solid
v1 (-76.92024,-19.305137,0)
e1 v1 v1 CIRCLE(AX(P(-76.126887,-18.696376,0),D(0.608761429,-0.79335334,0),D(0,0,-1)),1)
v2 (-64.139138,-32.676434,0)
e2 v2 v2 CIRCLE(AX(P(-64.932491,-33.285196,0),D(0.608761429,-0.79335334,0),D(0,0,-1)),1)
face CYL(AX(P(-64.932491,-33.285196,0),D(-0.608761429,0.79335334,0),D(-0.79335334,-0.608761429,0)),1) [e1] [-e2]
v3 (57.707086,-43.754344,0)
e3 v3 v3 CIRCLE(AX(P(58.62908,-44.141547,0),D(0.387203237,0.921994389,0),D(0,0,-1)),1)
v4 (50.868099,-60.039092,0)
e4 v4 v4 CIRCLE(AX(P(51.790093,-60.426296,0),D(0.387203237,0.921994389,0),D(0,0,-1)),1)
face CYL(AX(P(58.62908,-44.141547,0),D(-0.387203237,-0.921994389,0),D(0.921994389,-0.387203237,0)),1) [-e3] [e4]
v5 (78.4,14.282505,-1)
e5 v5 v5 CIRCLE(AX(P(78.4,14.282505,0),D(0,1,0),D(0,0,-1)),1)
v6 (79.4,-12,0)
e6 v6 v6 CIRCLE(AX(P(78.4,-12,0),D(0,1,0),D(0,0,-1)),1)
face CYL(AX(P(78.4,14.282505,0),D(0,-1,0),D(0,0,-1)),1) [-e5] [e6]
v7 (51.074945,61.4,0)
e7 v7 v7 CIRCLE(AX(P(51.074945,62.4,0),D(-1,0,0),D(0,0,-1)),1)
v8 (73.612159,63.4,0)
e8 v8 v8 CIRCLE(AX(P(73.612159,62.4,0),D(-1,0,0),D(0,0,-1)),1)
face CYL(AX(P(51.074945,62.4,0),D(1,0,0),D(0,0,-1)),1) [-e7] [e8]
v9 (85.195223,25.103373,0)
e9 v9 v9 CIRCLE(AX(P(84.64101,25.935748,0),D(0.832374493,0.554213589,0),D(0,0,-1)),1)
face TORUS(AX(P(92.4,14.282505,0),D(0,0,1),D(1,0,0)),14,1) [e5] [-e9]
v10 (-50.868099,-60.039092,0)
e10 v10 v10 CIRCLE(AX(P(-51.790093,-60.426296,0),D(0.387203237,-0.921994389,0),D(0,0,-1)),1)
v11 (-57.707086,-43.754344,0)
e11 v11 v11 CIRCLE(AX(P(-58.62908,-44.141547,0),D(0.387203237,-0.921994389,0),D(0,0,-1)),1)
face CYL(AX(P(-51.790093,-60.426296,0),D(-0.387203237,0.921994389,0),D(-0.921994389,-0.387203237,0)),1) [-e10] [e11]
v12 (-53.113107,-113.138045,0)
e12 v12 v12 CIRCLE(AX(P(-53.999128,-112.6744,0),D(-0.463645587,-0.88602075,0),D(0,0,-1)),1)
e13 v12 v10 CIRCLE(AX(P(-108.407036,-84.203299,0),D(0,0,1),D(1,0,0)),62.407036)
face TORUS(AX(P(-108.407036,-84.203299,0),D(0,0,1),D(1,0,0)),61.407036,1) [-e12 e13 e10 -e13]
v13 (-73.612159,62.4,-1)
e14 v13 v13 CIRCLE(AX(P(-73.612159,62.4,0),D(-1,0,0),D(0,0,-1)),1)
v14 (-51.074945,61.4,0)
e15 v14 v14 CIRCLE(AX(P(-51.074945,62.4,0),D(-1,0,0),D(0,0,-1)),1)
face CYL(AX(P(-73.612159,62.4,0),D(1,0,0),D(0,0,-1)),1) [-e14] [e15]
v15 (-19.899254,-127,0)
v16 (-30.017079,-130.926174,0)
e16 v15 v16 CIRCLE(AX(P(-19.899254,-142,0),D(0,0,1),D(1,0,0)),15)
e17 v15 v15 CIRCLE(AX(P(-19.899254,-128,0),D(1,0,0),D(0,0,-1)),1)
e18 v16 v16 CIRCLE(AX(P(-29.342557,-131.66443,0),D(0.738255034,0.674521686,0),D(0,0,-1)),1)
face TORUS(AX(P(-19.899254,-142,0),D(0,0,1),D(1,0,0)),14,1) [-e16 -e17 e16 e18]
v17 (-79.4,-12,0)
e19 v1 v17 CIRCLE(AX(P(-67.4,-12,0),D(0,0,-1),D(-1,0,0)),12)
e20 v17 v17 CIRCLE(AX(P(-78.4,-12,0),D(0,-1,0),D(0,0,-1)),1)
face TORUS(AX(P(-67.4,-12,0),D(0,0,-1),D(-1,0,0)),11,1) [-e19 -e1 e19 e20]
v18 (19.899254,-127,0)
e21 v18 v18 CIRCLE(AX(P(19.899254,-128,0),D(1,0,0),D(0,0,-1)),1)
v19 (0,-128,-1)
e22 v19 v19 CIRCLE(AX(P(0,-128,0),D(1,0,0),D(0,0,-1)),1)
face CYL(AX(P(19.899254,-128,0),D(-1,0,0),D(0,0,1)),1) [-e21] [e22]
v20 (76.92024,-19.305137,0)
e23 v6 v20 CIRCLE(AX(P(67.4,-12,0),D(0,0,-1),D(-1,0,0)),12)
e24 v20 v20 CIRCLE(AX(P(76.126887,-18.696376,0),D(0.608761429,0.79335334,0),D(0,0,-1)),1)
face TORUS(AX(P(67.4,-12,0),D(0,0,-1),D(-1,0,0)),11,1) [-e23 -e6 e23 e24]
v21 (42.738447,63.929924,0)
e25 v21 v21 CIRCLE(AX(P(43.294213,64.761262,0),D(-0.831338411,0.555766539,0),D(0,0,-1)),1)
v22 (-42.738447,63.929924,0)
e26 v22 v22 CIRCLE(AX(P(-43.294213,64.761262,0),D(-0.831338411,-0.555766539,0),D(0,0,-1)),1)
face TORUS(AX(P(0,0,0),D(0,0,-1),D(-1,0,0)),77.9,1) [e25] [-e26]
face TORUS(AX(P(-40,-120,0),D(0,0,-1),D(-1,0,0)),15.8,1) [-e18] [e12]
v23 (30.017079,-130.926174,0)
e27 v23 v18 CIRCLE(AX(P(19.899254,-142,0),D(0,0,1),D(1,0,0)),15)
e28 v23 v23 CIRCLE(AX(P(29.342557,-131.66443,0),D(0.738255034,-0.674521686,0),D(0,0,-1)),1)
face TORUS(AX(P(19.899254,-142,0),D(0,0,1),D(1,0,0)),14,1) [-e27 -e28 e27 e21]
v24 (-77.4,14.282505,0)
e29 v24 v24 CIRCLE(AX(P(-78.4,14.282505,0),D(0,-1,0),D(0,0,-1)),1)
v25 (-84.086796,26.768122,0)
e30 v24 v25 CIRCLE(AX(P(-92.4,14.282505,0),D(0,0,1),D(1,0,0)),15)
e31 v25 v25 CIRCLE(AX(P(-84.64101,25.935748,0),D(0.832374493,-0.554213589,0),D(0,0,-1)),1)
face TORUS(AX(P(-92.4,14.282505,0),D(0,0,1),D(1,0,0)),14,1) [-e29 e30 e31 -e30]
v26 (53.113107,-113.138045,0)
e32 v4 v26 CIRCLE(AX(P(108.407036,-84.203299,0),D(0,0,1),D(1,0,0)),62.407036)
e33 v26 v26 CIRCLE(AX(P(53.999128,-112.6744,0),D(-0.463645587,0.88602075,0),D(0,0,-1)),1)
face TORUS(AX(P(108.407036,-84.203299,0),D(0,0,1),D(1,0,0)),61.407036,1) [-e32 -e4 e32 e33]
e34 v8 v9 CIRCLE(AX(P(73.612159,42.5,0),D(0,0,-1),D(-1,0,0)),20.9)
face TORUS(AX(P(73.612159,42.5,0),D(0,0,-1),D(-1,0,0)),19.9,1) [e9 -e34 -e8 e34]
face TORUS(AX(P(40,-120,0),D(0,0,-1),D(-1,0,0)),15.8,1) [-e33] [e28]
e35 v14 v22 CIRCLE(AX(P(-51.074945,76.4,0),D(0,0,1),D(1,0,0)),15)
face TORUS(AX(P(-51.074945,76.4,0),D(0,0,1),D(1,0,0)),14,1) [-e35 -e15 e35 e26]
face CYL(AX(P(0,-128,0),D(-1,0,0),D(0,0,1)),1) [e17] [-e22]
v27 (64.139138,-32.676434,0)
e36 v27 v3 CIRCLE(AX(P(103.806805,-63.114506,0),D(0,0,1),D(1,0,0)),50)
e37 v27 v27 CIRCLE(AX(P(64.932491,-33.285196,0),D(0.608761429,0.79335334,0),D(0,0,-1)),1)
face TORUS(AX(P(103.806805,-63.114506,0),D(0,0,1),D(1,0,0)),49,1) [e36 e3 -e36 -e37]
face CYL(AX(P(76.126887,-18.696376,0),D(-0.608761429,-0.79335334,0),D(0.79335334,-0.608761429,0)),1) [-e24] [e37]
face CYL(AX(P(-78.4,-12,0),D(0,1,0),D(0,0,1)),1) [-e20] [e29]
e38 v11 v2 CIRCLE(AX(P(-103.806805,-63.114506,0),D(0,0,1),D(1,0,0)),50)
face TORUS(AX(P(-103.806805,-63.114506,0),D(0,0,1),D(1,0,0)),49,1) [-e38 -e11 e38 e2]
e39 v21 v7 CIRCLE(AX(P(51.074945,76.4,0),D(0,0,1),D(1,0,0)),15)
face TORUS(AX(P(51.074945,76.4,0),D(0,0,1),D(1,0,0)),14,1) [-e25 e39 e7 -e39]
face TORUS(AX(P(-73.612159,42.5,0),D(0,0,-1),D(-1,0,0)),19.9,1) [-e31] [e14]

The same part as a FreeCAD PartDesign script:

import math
import FreeCAD as App
import Part
import Sketcher

V = App.Vector
Q = App.Units.Quantity

doc = App.newDocument("Part")
body = doc.addObject("PartDesign::Body", "Body")

sketch1 = doc.addObject("Sketcher::SketchObject", "Sketch")
body.addObject(sketch1)
sketch1.AttachmentSupport = (doc.YZ_Plane, [""])
sketch1.MapMode = "FlatFace"
sketch1.addGeometry(Part.Circle(V(-128, 0, 0), V(0, 0, 1), 1), False)
sketch1.addConstraint([
    Sketcher.Constraint("PointOnObject", 0, 3, -1),
    Sketcher.Constraint("Diameter", 0, Q("2 mm")),
    Sketcher.Constraint("DistanceX", 0, 3, -1, 1, Q("128 mm")),
])

sketch2 = doc.addObject("Sketcher::SketchObject", "Sketch001")
body.addObject(sketch2)
sketch2.AttachmentSupport = (doc.XY_Plane, [""])
sketch2.MapMode = "FlatFace"
sketch2.addGeometry([
    Part.LineSegment(V(-77, 14, 0), V(-77, -12, 0)),
    Part.ArcOfCircle(Part.Circle(V(-67, -12, 0), V(0, 0, 1), 10), math.radians(180), math.radians(217)),
    Part.LineSegment(V(-75, -18, 0), V(-64, -33, 0)),
    Part.ArcOfCircle(Part.Circle(V(-104, -63, 0), V(0, 0, 1), 50), math.radians(22.78), math.radians(37.5)),
    Part.LineSegment(V(-58, -44, 0), V(-51, -60, 0)),
    Part.ArcOfCircle(Part.Circle(V(-108, -84, 0), V(0, 0, 1), 62), math.radians(-28), math.radians(23)),
    Part.ArcOfCircle(Part.Circle(V(-40, -120, 0), V(0, 0, 1), 15), math.radians(152), math.radians(312)),
    Part.ArcOfCircle(Part.Circle(V(-20, -142, 0), V(0, 0, 1), 15), math.radians(90), math.radians(132)),
    Part.LineSegment(V(-20, -127, 0), V(20, -127, 0)),
    Part.ArcOfCircle(Part.Circle(V(20, -142, 0), V(0, 0, 1), 15), math.radians(48), math.radians(90)),
    Part.ArcOfCircle(Part.Circle(V(40, -120, 0), V(0, 0, 1), 15), math.radians(-132), math.radians(28)),
    Part.ArcOfCircle(Part.Circle(V(108, -84, 0), V(0, 0, 1), 62), math.radians(157), math.radians(208)),
    Part.LineSegment(V(51, -60, 0), V(58, -44, 0)),
    Part.ArcOfCircle(Part.Circle(V(104, -63, 0), V(0, 0, 1), 50), math.radians(142.5), math.radians(157.22)),
    Part.LineSegment(V(64, -33, 0), V(75, -18, 0)),
    Part.ArcOfCircle(Part.Circle(V(67, -12, 0), V(0, 0, 1), 10), math.radians(-37), math.radians(0)),
    Part.LineSegment(V(77, -12, 0), V(77, 14, 0)),
    Part.ArcOfCircle(Part.Circle(V(92, 14, 0), V(0, 0, 1), 15), math.radians(124), math.radians(180)),
    Part.ArcOfCircle(Part.Circle(V(74, 42, 0), V(0, 0, 1), 19), math.radians(-56), math.radians(90)),
    Part.LineSegment(V(74, 61, 0), V(51, 61, 0)),
    Part.ArcOfCircle(Part.Circle(V(51, 76, 0), V(0, 0, 1), 15), math.radians(-124), math.radians(-90)),
    Part.ArcOfCircle(Part.Circle(V(0, 0, 0), V(0, 0, 1), 77), math.radians(56), math.radians(124)),
    Part.ArcOfCircle(Part.Circle(V(-51, 76, 0), V(0, 0, 1), 15), math.radians(-90), math.radians(-56)),
    Part.LineSegment(V(-51, 61, 0), V(-74, 61, 0)),
    Part.ArcOfCircle(Part.Circle(V(-74, 42, 0), V(0, 0, 1), 19), math.radians(90), math.radians(236)),
    Part.ArcOfCircle(Part.Circle(V(-92, 14, 0), V(0, 0, 1), 15), math.radians(0), math.radians(56)),
], False)
sketch2.addConstraint([
    Sketcher.Constraint("Tangent", 0, 2, 1, 1),
    Sketcher.Constraint("Tangent", 1, 2, 2, 1),
    Sketcher.Constraint("Tangent", 2, 2, 3, 2),
    Sketcher.Constraint("Tangent", 3, 1, 4, 1),
    Sketcher.Constraint("Tangent", 4, 2, 5, 2),
    Sketcher.Constraint("Tangent", 5, 1, 6, 1),
    Sketcher.Constraint("Tangent", 6, 2, 7, 2),
    Sketcher.Constraint("Tangent", 7, 1, 8, 1),
    Sketcher.Constraint("Tangent", 8, 2, 9, 2),
    Sketcher.Constraint("Tangent", 9, 1, 10, 1),
    Sketcher.Constraint("Tangent", 10, 2, 11, 2),
    Sketcher.Constraint("Tangent", 11, 1, 12, 1),
    Sketcher.Constraint("Tangent", 12, 2, 13, 2),
    Sketcher.Constraint("Tangent", 13, 1, 14, 1),
    Sketcher.Constraint("Tangent", 14, 2, 15, 1),
    Sketcher.Constraint("Tangent", 15, 2, 16, 1),
    Sketcher.Constraint("Tangent", 16, 2, 17, 2),
    Sketcher.Constraint("Tangent", 17, 1, 18, 1),
    Sketcher.Constraint("Tangent", 18, 2, 19, 1),
    Sketcher.Constraint("Tangent", 19, 2, 20, 2),
    Sketcher.Constraint("Tangent", 20, 1, 21, 1),
    Sketcher.Constraint("Tangent", 21, 2, 22, 2),
    Sketcher.Constraint("Tangent", 22, 1, 23, 1),
    Sketcher.Constraint("Tangent", 23, 2, 24, 1),
    Sketcher.Constraint("Tangent", 24, 2, 25, 2),
    Sketcher.Constraint("Tangent", 25, 1, 0, 1),
    Sketcher.Constraint("Vertical", 0),
    Sketcher.Constraint("Horizontal", 8),
    Sketcher.Constraint("Vertical", 16),
    Sketcher.Constraint("Horizontal", 19),
    Sketcher.Constraint("Horizontal", 23),
    Sketcher.Constraint("Coincident", 21, 3, -1, 1),
    Sketcher.Constraint("Equal", 7, 9),
    Sketcher.Constraint("Equal", 6, 10),
    Sketcher.Constraint("Equal", 5, 11),
    Sketcher.Constraint("Equal", 3, 13),
    Sketcher.Constraint("Equal", 1, 15),
    Sketcher.Constraint("Equal", 9, 17),
    Sketcher.Constraint("Equal", 17, 20),
    Sketcher.Constraint("Equal", 20, 22),
    Sketcher.Constraint("Equal", 18, 24),
    Sketcher.Constraint("Equal", 22, 25),
    Sketcher.Constraint("Symmetric", 6, 3, 10, 3, -2),
    Sketcher.Constraint("Symmetric", 3, 3, 13, 3, -2),
    Sketcher.Constraint("Symmetric", 1, 3, 15, 3, -2),
    Sketcher.Constraint("Symmetric", 18, 3, 24, 3, -2),
    Sketcher.Constraint("Horizontal", 5, 3, 11, 3),
    Sketcher.Constraint("Radius", 1, Q("10 mm")),
    Sketcher.Constraint("Radius", 3, Q("50 mm")),
    Sketcher.Constraint("Radius", 7, Q("15 mm")),
    Sketcher.Constraint("Radius", 6, Q("14.8 mm")),
    Sketcher.Constraint("Radius", 18, Q("18.9 mm")),
    Sketcher.Constraint("Radius", 21, Q("76.9 mm")),
    Sketcher.Constraint("DistanceY", 1, 3, -1, 1, Q("12 mm")),
    Sketcher.Constraint("DistanceX", 6, 3, -1, 1, Q("40 mm")),
    Sketcher.Constraint("DistanceY", 6, 3, -1, 1, Q("120 mm")),
    Sketcher.Constraint("DistanceY", 7, 3, -1, 1, Q("142 mm")),
    Sketcher.Constraint("Angle", 2, Q("-52.5 deg")),
    Sketcher.Constraint("DistanceX", 1, 3, -1, 1, Q("67.4 mm")),
    Sketcher.Constraint("DistanceY", -1, 1, 18, 3, Q("42.5 mm")),
    Sketcher.Constraint("Radius", 5, Q("62.407036 mm")),
    Sketcher.Constraint("DistanceY", 5, 3, -1, 1, Q("84.203299 mm")),
    Sketcher.Constraint("DistanceX", 4, 2, -1, 1, Q("50.868099 mm")),
    Sketcher.Constraint("DistanceY", 17, 1, 20, 1, Q("37.161802 mm")),
])
doc.recompute()

additivepipe = doc.addObject("PartDesign::AdditivePipe", "AdditivePipe")
body.addObject(additivepipe)
additivepipe.Profile = sketch1
additivepipe.Spine = (sketch2, ["Edge1", "Edge2", "Edge3", "Edge4", "Edge5", "Edge6", "Edge7", "Edge8", "Edge9", "Edge10", "Edge11", "Edge12", "Edge13", "Edge14", "Edge15", "Edge16", "Edge17", "Edge18", "Edge19", "Edge20", "Edge21", "Edge22", "Edge23", "Edge24", "Edge25", "Edge26"])

doc.recompute()
